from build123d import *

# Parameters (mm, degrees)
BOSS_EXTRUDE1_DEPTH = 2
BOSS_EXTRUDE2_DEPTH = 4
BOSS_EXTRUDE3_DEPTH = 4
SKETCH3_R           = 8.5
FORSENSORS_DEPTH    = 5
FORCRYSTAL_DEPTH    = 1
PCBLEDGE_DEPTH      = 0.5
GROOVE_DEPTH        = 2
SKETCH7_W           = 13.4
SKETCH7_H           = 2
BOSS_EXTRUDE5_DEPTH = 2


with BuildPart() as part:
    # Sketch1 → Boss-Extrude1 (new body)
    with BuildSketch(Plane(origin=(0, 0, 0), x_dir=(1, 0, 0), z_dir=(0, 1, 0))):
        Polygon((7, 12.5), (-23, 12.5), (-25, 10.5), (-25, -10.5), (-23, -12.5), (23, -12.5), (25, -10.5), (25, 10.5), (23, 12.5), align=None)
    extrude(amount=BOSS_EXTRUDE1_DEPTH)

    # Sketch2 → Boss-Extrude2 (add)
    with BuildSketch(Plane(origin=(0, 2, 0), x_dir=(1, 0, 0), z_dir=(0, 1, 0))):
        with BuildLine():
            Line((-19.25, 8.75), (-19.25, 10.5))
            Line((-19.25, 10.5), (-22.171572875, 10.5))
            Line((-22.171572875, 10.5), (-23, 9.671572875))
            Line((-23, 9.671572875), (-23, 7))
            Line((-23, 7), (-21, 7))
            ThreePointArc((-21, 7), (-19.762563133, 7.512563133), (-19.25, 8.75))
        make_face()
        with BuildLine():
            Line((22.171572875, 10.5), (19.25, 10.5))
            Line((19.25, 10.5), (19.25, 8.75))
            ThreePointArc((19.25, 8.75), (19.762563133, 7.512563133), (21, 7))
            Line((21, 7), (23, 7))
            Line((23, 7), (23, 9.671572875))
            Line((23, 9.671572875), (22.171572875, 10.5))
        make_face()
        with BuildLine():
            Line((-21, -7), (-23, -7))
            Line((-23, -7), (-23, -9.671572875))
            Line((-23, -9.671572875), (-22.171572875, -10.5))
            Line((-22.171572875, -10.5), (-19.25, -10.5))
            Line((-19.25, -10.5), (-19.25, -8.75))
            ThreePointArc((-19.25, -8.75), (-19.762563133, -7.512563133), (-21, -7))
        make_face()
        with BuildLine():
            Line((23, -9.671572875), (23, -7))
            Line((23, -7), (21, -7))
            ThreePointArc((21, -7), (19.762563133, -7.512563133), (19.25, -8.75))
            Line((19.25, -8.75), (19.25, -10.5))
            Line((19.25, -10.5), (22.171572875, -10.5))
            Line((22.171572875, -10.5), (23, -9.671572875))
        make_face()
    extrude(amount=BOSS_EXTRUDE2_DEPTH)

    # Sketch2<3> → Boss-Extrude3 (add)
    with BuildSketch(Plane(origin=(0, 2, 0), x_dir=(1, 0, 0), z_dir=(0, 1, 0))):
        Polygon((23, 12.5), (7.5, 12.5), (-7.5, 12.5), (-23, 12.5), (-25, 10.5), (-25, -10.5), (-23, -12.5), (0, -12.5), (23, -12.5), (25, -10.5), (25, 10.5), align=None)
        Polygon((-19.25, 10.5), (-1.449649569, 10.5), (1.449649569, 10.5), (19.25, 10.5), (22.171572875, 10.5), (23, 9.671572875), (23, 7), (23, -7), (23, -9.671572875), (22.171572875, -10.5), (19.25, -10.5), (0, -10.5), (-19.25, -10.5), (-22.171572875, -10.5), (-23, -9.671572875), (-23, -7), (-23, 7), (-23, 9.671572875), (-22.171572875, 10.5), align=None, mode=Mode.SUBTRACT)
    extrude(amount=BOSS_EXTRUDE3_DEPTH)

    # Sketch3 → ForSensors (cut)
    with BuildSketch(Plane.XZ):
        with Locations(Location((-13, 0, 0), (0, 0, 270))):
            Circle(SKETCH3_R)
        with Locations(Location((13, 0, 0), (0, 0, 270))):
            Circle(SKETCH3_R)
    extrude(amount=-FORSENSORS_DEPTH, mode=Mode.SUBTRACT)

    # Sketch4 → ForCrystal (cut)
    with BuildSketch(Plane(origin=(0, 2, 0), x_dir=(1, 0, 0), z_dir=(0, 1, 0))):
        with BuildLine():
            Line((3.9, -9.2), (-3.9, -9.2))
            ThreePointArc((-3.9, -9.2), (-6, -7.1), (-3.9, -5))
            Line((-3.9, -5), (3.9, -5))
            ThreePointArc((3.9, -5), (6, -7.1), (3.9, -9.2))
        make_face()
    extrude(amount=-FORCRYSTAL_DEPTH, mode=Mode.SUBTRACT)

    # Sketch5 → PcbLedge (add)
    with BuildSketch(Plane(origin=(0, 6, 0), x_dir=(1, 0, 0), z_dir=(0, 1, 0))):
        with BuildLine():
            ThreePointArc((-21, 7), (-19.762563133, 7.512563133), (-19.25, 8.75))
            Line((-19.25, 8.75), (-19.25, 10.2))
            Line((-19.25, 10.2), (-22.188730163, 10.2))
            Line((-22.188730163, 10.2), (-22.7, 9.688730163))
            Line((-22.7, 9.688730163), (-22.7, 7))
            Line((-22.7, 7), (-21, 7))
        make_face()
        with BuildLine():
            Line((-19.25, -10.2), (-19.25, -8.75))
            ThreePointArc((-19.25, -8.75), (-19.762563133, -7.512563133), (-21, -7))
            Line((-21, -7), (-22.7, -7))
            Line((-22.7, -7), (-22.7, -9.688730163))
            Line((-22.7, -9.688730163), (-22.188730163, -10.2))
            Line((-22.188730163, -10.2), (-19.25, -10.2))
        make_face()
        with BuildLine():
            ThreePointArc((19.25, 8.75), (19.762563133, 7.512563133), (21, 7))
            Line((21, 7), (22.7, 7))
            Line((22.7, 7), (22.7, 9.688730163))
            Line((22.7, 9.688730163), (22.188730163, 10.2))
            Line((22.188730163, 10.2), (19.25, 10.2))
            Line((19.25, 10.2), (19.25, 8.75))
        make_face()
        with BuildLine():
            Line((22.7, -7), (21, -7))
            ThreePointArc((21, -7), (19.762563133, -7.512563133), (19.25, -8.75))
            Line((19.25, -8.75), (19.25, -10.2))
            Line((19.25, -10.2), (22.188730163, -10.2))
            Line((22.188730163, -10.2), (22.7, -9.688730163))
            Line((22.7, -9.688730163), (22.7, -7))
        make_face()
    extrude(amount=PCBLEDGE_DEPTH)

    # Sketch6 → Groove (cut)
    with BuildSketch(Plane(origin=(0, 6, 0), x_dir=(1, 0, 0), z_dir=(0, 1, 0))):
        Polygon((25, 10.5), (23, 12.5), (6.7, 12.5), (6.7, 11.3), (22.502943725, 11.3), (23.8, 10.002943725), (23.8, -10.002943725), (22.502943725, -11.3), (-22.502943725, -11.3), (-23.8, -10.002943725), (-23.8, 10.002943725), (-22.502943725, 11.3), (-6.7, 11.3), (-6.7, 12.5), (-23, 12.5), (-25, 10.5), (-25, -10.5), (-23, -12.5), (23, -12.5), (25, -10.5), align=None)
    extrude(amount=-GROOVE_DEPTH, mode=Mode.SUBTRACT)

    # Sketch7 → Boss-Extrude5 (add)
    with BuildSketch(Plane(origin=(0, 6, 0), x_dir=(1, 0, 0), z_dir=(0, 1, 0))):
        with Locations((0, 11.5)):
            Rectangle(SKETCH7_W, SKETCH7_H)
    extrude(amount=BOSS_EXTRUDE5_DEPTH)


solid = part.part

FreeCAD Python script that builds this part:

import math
import FreeCAD as App
import Part
import Sketcher
from FreeCAD import Vector
Q = App.Units.Quantity


def add_polygon(sketch, points):
    """Adds a closed chain of lines whose ends are joined by coincident constraints."""
    first, n = sketch.GeometryCount, len(points)
    for a, b in zip(points, points[1:] + points[:1]):
        sketch.addGeometry(Part.LineSegment(App.Vector(*a, 0), App.Vector(*b, 0)), False)
    for i in range(n):
        sketch.addConstraint(Sketcher.Constraint("Coincident", first + i, 2, first + (i + 1) % n, 1))

doc = App.newDocument("Part")
body = doc.addObject("PartDesign::Body", "Body")

sketch1 = body.newObject("Sketcher::SketchObject", "Sketch")
sketch1.AttachmentSupport = (doc.getObject("XZ_Plane"), [""])
sketch1.MapMode = "FlatFace"
add_polygon(sketch1, [(-23, -12.5), (-25, -10.5), (-25, 10.5), (-23, 12.5), (23, 12.5), (25, 10.5), (25, -10.5), (23, -12.5)])
sketch1.addConstraint([
    Sketcher.Constraint("Vertical", 1),
    Sketcher.Constraint("Horizontal", 3),
    Sketcher.Constraint("Vertical", 5),
    Sketcher.Constraint("Horizontal", 7),
    Sketcher.Constraint("Symmetric", 0, 2, 4, 2, -1, 1),
    Sketcher.Constraint("Symmetric", 2, 2, 6, 2, -1, 1),
    Sketcher.Constraint("Perpendicular", 0, 2),
    Sketcher.Constraint("Perpendicular", 2, 4),
    Sketcher.Constraint("Perpendicular", 4, 6),
    Sketcher.Constraint("Horizontal", 1, 2, 4, 2),
    Sketcher.Constraint("Vertical", 3, 2, 6, 2),
    Sketcher.Constraint("DistanceX", 3, 1, 3, 2, Q("46 mm")),
    Sketcher.Constraint("DistanceY", 1, 1, 1, 2, Q("21 mm")),
    Sketcher.Constraint("DistanceX", 0, 2, -1, 1, Q("25 mm")),
])
pad1 = body.newObject("PartDesign::Pad", "Pad")
pad1.Profile = sketch1
pad1.Length = 2
pad1.Reversed = True

sketch2 = body.newObject("Sketcher::SketchObject", "Sketch001")
sketch2.AttachmentSupport = (doc.getObject("XZ_Plane"), [""])
sketch2.MapMode = "FlatFace"
sketch2.AttachmentOffset = App.Placement(Vector(0, 0, -2), App.Rotation())
sketch2.addGeometry([
    Part.LineSegment(Vector(-19.2, -8.8, 0), Vector(-19.2, -10.5, 0)),
    Part.LineSegment(Vector(-19.2, -10.5, 0), Vector(-22.2, -10.5, 0)),
    Part.LineSegment(Vector(-22.2, -10.5, 0), Vector(-23, -9.7, 0)),
    Part.LineSegment(Vector(-23, -9.7, 0), Vector(-23, -7, 0)),
    Part.LineSegment(Vector(-23, -7, 0), Vector(-21, -7, 0)),
    Part.ArcOfCircle(Part.Circle(Vector(-21, -8.8, 0), Vector(0, 0, 1), 1.8), math.radians(0), math.radians(90)),
    Part.LineSegment(Vector(22.2, -10.5, 0), Vector(19.2, -10.5, 0)),
    Part.LineSegment(Vector(19.2, -10.5, 0), Vector(19.2, -8.8, 0)),
    Part.ArcOfCircle(Part.Circle(Vector(21, -8.8, 0), Vector(0, 0, 1), 1.8), math.radians(90), math.radians(180)),
    Part.LineSegment(Vector(21, -7, 0), Vector(23, -7, 0)),
    Part.LineSegment(Vector(23, -7, 0), Vector(23, -9.7, 0)),
    Part.LineSegment(Vector(23, -9.7, 0), Vector(22.2, -10.5, 0)),
    Part.LineSegment(Vector(-21, 7, 0), Vector(-23, 7, 0)),
    Part.LineSegment(Vector(-23, 7, 0), Vector(-23, 9.7, 0)),
    Part.LineSegment(Vector(-23, 9.7, 0), Vector(-22.2, 10.5, 0)),
    Part.LineSegment(Vector(-22.2, 10.5, 0), Vector(-19.2, 10.5, 0)),
    Part.LineSegment(Vector(-19.2, 10.5, 0), Vector(-19.2, 8.8, 0)),
    Part.ArcOfCircle(Part.Circle(Vector(-21, 8.8, 0), Vector(0, 0, 1), 1.8), math.radians(-90), math.radians(0)),
    Part.LineSegment(Vector(23, 9.7, 0), Vector(23, 7, 0)),
    Part.LineSegment(Vector(23, 7, 0), Vector(21, 7, 0)),
    Part.ArcOfCircle(Part.Circle(Vector(21, 8.8, 0), Vector(0, 0, 1), 1.8), math.radians(180), math.radians(270)),
    Part.LineSegment(Vector(19.2, 8.8, 0), Vector(19.2, 10.5, 0)),
    Part.LineSegment(Vector(19.2, 10.5, 0), Vector(22.2, 10.5, 0)),
    Part.LineSegment(Vector(22.2, 10.5, 0), Vector(23, 9.7, 0)),
], False)
sketch2.addConstraint([
    Sketcher.Constraint("Coincident", 0, 2, 1, 1),
    Sketcher.Constraint("Coincident", 1, 2, 2, 1),
    Sketcher.Constraint("Coincident", 2, 2, 3, 1),
    Sketcher.Constraint("Coincident", 3, 2, 4, 1),
    Sketcher.Constraint("Tangent", 4, 2, 5, 2),
    Sketcher.Constraint("Tangent", 5, 1, 0, 1),
    Sketcher.Constraint("Coincident", 6, 2, 7, 1),
    Sketcher.Constraint("Tangent", 7, 2, 8, 2),
    Sketcher.Constraint("Tangent", 8, 1, 9, 1),
    Sketcher.Constraint("Coincident", 9, 2, 10, 1),
    Sketcher.Constraint("Coincident", 10, 2, 11, 1),
    Sketcher.Constraint("Coincident", 11, 2, 6, 1),
    Sketcher.Constraint("Coincident", 12, 2, 13, 1),
    Sketcher.Constraint("Coincident", 13, 2, 14, 1),
    Sketcher.Constraint("Coincident", 14, 2, 15, 1),
    Sketcher.Constraint("Coincident", 15, 2, 16, 1),
    Sketcher.Constraint("Tangent", 16, 2, 17, 2),
    Sketcher.Constraint("Tangent", 17, 1, 12, 1),
    Sketcher.Constraint("Coincident", 18, 2, 19, 1),
    Sketcher.Constraint("Tangent", 19, 2, 20, 2),
    Sketcher.Constraint("Tangent", 20, 1, 21, 1),
    Sketcher.Constraint("Coincident", 21, 2, 22, 1),
    Sketcher.Constraint("Coincident", 22, 2, 23, 1),
    Sketcher.Constraint("Coincident", 23, 2, 18, 1),
    Sketcher.Constraint("Vertical", 0),
    Sketcher.Constraint("Horizontal", 1),
    Sketcher.Constraint("Vertical", 3),
    Sketcher.Constraint("Horizontal", 4),
    Sketcher.Constraint("Horizontal", 6),
    Sketcher.Constraint("Vertical", 7),
    Sketcher.Constraint("Horizontal", 9),
    Sketcher.Constraint("Vertical", 10),
    Sketcher.Constraint("Horizontal", 12),
    Sketcher.Constraint("Vertical", 13),
    Sketcher.Constraint("Horizontal", 15),
    Sketcher.Constraint("Vertical", 16),
    Sketcher.Constraint("Vertical", 18),
    Sketcher.Constraint("Horizontal", 19),
    Sketcher.Constraint("Vertical", 21),
    Sketcher.Constraint("Horizontal", 22),
    Sketcher.Constraint("Equal", 5, 8),
    Sketcher.Constraint("Equal", 8, 17),
    Sketcher.Constraint("Equal", 17, 20),
    Sketcher.Constraint("Symmetric", 8, 3, 17, 3, -1, 1),
    Sketcher.Constraint("Symmetric", 5, 3, 20, 3, -1, 1),
    Sketcher.Constraint("Symmetric", 10, 2, 13, 2, -1, 1),
    Sketcher.Constraint("Symmetric", 11, 2, 14, 2, -1, 1),
    Sketcher.Constraint("Symmetric", 1, 2, 22, 2, -1, 1),
    Sketcher.Constraint("Symmetric", 2, 2, 23, 2, -1, 1),
    Sketcher.Constraint("Symmetric", 5, 3, 8, 3, -2),
    Sketcher.Constraint("Symmetric", 2, 2, 10, 2, -2),
    Sketcher.Constraint("Symmetric", 1, 2, 11, 2, -2),
    Sketcher.Constraint("Perpendicular", 2, 11),
    Sketcher.Constraint("DistanceX", 4, 1, 4, 2, Q("2 mm")),
    Sketcher.Constraint("Radius", 5, Q("1.75 mm")),
    Sketcher.Constraint("DistanceX", 5, 3, -1, 1, Q("21 mm")),
    Sketcher.Constraint("DistanceY", 3, 2, -1, 1, Q("7 mm")),
    Sketcher.Constraint("DistanceY", 0, 2, 0, 1, Q("1.75 mm")),
    Sketcher.Constraint("DistanceX", 1, 2, 1, 1, Q("2.921573 mm")),
])
pad2 = body.newObject("PartDesign::Pad", "Pad001")
pad2.Profile = sketch2
pad2.Length = 4
pad2.Reversed = True

sketch3 = body.newObject("Sketcher::SketchObject", "Sketch002")
sketch3.AttachmentSupport = (doc.getObject("XZ_Plane"), [""])
sketch3.MapMode = "FlatFace"
sketch3.AttachmentOffset = App.Placement(Vector(0, 0, -2), App.Rotation())
add_polygon(sketch3, [(23, -12.5), (-23, -12.5), (-25, -10.5), (-25, 10.5), (-23, 12.5), (23, 12.5), (25, 10.5), (25, -10.5)])
add_polygon(sketch3, [(-22.2, -10.5), (22.2, -10.5), (23, -9.7), (23, 9.7), (22.2, 10.5), (-22.2, 10.5), (-23, 9.7), (-23, -9.7)])
sketch3.addConstraint([
    Sketcher.Constraint("Horizontal", 0),
    Sketcher.Constraint("Vertical", 2),
    Sketcher.Constraint("Horizontal", 4),
    Sketcher.Constraint("Vertical", 6),
    Sketcher.Constraint("Horizontal", 8),
    Sketcher.Constraint("Vertical", 10),
    Sketcher.Constraint("Horizontal", 12),
    Sketcher.Constraint("Vertical", 14),
    Sketcher.Constraint("Symmetric", 0, 2, 4, 2, -1, 1),
    Sketcher.Constraint("Symmetric", 1, 2, 5, 2, -1, 1),
    Sketcher.Constraint("Symmetric", 8, 2, 12, 2, -1, 1),
    Sketcher.Constraint("Symmetric", 9, 2, 13, 2, -1, 1),
    Sketcher.Constraint("Perpendicular", 1, 3),
    Sketcher.Constraint("Perpendicular", 5, 7),
    Sketcher.Constraint("Parallel", 7, 9),
    Sketcher.Constraint("Perpendicular", 9, 11),
    Sketcher.Constraint("Perpendicular", 13, 15),
    Sketcher.Constraint("Horizontal", 2, 2, 5, 2),
    Sketcher.Constraint("Horizontal", 1, 2, 6, 2),
    Sketcher.Constraint("Horizontal", 6, 2, 8, 2),
    Sketcher.Constraint("Horizontal", 10, 2, 13, 2),
    Sketcher.Constraint("Horizontal", 9, 2, 14, 2),
    Sketcher.Constraint("Vertical", 0, 2, 3, 2),
    Sketcher.Constraint("Vertical", 7, 2, 9, 2),
    Sketcher.Constraint("DistanceX", 0, 2, 0, 1, Q("46 mm")),
    Sketcher.Constraint("DistanceY", 2, 1, 2, 2, Q("21 mm")),
    Sketcher.Constraint("DistanceX", 1, 2, -1, 1, Q("25 mm")),
    Sketcher.Constraint("DistanceX", 8, 1, 8, 2, Q("44.343146 mm")),
])
pad3 = body.newObject("PartDesign::Pad", "Pad002")
pad3.Profile = sketch3
pad3.Length = 4
pad3.Reversed = True

sketch4 = body.newObject("Sketcher::SketchObject", "Sketch003")
sketch4.AttachmentSupport = (doc.getObject("XZ_Plane"), [""])
sketch4.MapMode = "FlatFace"
sketch4.addGeometry([
    Part.Circle(Vector(-13, 0, 0), Vector(0, 0, 1), 8),
    Part.Circle(Vector(13, 0, 0), Vector(0, 0, 1), 8),
], False)
sketch4.addConstraint([
    Sketcher.Constraint("Equal", 0, 1),
    Sketcher.Constraint("Symmetric", 0, 3, 1, 3, -1, 1),
    Sketcher.Constraint("PointOnObject", 0, 3, -1),
    Sketcher.Constraint("Diameter", 0, Q("17 mm")),
    Sketcher.Constraint("DistanceX", 0, 3, -1, 1, Q("13 mm")),
])
pocket1 = body.newObject("PartDesign::Pocket", "Pocket")
pocket1.Profile = sketch4
pocket1.Length = 5

sketch5 = body.newObject("Sketcher::SketchObject", "Sketch004")
sketch5.AttachmentSupport = (doc.getObject("XZ_Plane"), [""])
sketch5.MapMode = "FlatFace"
sketch5.AttachmentOffset = App.Placement(Vector(0, 0, -2), App.Rotation())
sketch5.addGeometry([
    Part.LineSegment(Vector(-3.9, 9.2, 0), Vector(3.9, 9.2, 0)),
    Part.ArcOfCircle(Part.Circle(Vector(3.9, 7.1, 0), Vector(0, 0, 1), 2.1), math.radians(-90), math.radians(90)),
    Part.LineSegment(Vector(3.9, 5, 0), Vector(-3.9, 5, 0)),
    Part.ArcOfCircle(Part.Circle(Vector(-3.9, 7.1, 0), Vector(0, 0, 1), 2.1), math.radians(90), math.radians(270)),
], False)
sketch5.addConstraint([
    Sketcher.Constraint("Tangent", 0, 2, 1, 2),
    Sketcher.Constraint("Tangent", 1, 1, 2, 1),
    Sketcher.Constraint("Tangent", 2, 2, 3, 2),
    Sketcher.Constraint("Tangent", 3, 1, 0, 1),
    Sketcher.Constraint("Horizontal", 0),
    Sketcher.Constraint("Horizontal", 2),
    Sketcher.Constraint("Radius", 1, Q("2.1 mm")),
    Sketcher.Constraint("DistanceX", 0, 1, 0, 2, Q("7.8 mm")),
    Sketcher.Constraint("DistanceY", -1, 1, 1, 1, Q("5 mm")),
    Sketcher.Constraint("DistanceX", -1, 1, 1, 3, Q("3.9 mm")),
])
pocket2 = body.newObject("PartDesign::Pocket", "Pocket001")
pocket2.Profile = sketch5
pocket2.Length = 1
pocket2.Reversed = True

sketch6 = body.newObject("Sketcher::SketchObject", "Sketch005")
sketch6.AttachmentSupport = (doc.getObject("XZ_Plane"), [""])
sketch6.MapMode = "FlatFace"
sketch6.AttachmentOffset = App.Placement(Vector(0, 0, -6), App.Rotation())
sketch6.addGeometry([
    Part.ArcOfCircle(Part.Circle(Vector(-21, -8.8, 0), Vector(0, 0, 1), 1.8), math.radians(0), math.radians(90)),
    Part.LineSegment(Vector(-19.2, -8.8, 0), Vector(-19.2, -10.2, 0)),
    Part.LineSegment(Vector(-19.2, -10.2, 0), Vector(-22.2, -10.2, 0)),
    Part.LineSegment(Vector(-22.2, -10.2, 0), Vector(-22.7, -9.7, 0)),
    Part.LineSegment(Vector(-22.7, -9.7, 0), Vector(-22.7, -7, 0)),
    Part.LineSegment(Vector(-22.7, -7, 0), Vector(-21, -7, 0)),
    Part.LineSegment(Vector(-19.2, 10.2, 0), Vector(-19.2, 8.8, 0)),
    Part.ArcOfCircle(Part.Circle(Vector(-21, 8.8, 0), Vector(0, 0, 1), 1.8), math.radians(-90), math.radians(0)),
    Part.LineSegment(Vector(-21, 7, 0), Vector(-22.7, 7, 0)),
    Part.LineSegment(Vector(-22.7, 7, 0), Vector(-22.7, 9.7, 0)),
    Part.LineSegment(Vector(-22.7, 9.7, 0), Vector(-22.2, 10.2, 0)),
    Part.LineSegment(Vector(-22.2, 10.2, 0), Vector(-19.2, 10.2, 0)),
    Part.ArcOfCircle(Part.Circle(Vector(21, -8.8, 0), Vector(0, 0, 1), 1.8), math.radians(90), math.radians(180)),
    Part.LineSegment(Vector(21, -7, 0), Vector(22.7, -7, 0)),
    Part.LineSegment(Vector(22.7, -7, 0), Vector(22.7, -9.7, 0)),
    Part.LineSegment(Vector(22.7, -9.7, 0), Vector(22.2, -10.2, 0)),
    Part.LineSegment(Vector(22.2, -10.2, 0), Vector(19.2, -10.2, 0)),
    Part.LineSegment(Vector(19.2, -10.2, 0), Vector(19.2, -8.8, 0)),
    Part.LineSegment(Vector(22.7, 7, 0), Vector(21, 7, 0)),
    Part.ArcOfCircle(Part.Circle(Vector(21, 8.8, 0), Vector(0, 0, 1), 1.8), math.radians(180), math.radians(270)),
    Part.LineSegment(Vector(19.2, 8.8, 0), Vector(19.2, 10.2, 0)),
    Part.LineSegment(Vector(19.2, 10.2, 0), Vector(22.2, 10.2, 0)),
    Part.LineSegment(Vector(22.2, 10.2, 0), Vector(22.7, 9.7, 0)),
    Part.LineSegment(Vector(22.7, 9.7, 0), Vector(22.7, 7, 0)),
], False)
sketch6.addConstraint([
    Sketcher.Constraint("Tangent", 0, 1, 1, 1),
    Sketcher.Constraint("Coincident", 1, 2, 2, 1),
    Sketcher.Constraint("Coincident", 2, 2, 3, 1),
    Sketcher.Constraint("Coincident", 3, 2, 4, 1),
    Sketcher.Constraint("Coincident", 4, 2, 5, 1),
    Sketcher.Constraint("Tangent", 5, 2, 0, 2),
    Sketcher.Constraint("Tangent", 6, 2, 7, 2),
    Sketcher.Constraint("Tangent", 7, 1, 8, 1),
    Sketcher.Constraint("Coincident", 8, 2, 9, 1),
    Sketcher.Constraint("Coincident", 9, 2, 10, 1),
    Sketcher.Constraint("Coincident", 10, 2, 11, 1),
    Sketcher.Constraint("Coincident", 11, 2, 6, 1),
    Sketcher.Constraint("Tangent", 12, 1, 13, 1),
    Sketcher.Constraint("Coincident", 13, 2, 14, 1),
    Sketcher.Constraint("Coincident", 14, 2, 15, 1),
    Sketcher.Constraint("Coincident", 15, 2, 16, 1),
    Sketcher.Constraint("Coincident", 16, 2, 17, 1),
    Sketcher.Constraint("Tangent", 17, 2, 12, 2),
    Sketcher.Constraint("Tangent", 18, 2, 19, 2),
    Sketcher.Constraint("Tangent", 19, 1, 20, 1),
    Sketcher.Constraint("Coincident", 20, 2, 21, 1),
    Sketcher.Constraint("Coincident", 21, 2, 22, 1),
    Sketcher.Constraint("Coincident", 22, 2, 23, 1),
    Sketcher.Constraint("Coincident", 23, 2, 18, 1),
    Sketcher.Constraint("Vertical", 1),
    Sketcher.Constraint("Horizontal", 2),
    Sketcher.Constraint("Vertical", 4),
    Sketcher.Constraint("Horizontal", 5),
    Sketcher.Constraint("Vertical", 6),
    Sketcher.Constraint("Horizontal", 8),
    Sketcher.Constraint("Vertical", 9),
    Sketcher.Constraint("Horizontal", 11),
    Sketcher.Constraint("Horizontal", 13),
    Sketcher.Constraint("Vertical", 14),
    Sketcher.Constraint("Horizontal", 16),
    Sketcher.Constraint("Vertical", 17),
    Sketcher.Constraint("Horizontal", 18),
    Sketcher.Constraint("Vertical", 20),
    Sketcher.Constraint("Horizontal", 21),
    Sketcher.Constraint("Vertical", 23),
    Sketcher.Constraint("Equal", 0, 7),
    Sketcher.Constraint("Equal", 7, 12),
    Sketcher.Constraint("Equal", 12, 19),
    Sketcher.Constraint("Symmetric", 7, 3, 12, 3, -1, 1),
    Sketcher.Constraint("Symmetric", 0, 3, 19, 3, -1, 1),
    Sketcher.Constraint("Symmetric", 9, 2, 14, 2, -1, 1),
    Sketcher.Constraint("Symmetric", 10, 2, 15, 2, -1, 1),
    Sketcher.Constraint("Symmetric", 2, 2, 21, 2, -1, 1),
    Sketcher.Constraint("Symmetric", 3, 2, 22, 2, -1, 1),
    Sketcher.Constraint("Symmetric", 0, 3, 12, 3, -2),
    Sketcher.Constraint("Symmetric", 3, 2, 14, 2, -2),
    Sketcher.Constraint("Symmetric", 2, 2, 15, 2, -2),
    Sketcher.Constraint("Perpendicular", 3, 10),
    Sketcher.Constraint("Radius", 0, Q("1.75 mm")),
    Sketcher.Constraint("DistanceX", 5, 1, 5, 2, Q("1.7 mm")),
    Sketcher.Constraint("DistanceX", 0, 3, -1, 1, Q("21 mm")),
    Sketcher.Constraint("DistanceY", 4, 2, -1, 1, Q("7 mm")),
    Sketcher.Constraint("DistanceY", 1, 2, 1, 1, Q("1.45 mm")),
    Sketcher.Constraint("DistanceX", 2, 2, 2, 1, Q("2.93873 mm")),
])
pad4 = body.newObject("PartDesign::Pad", "Pad003")
pad4.Profile = sketch6
pad4.Length = 0.5
pad4.Reversed = True

sketch7 = body.newObject("Sketcher::SketchObject", "Sketch006")
sketch7.AttachmentSupport = (doc.getObject("XZ_Plane"), [""])
sketch7.MapMode = "FlatFace"
sketch7.AttachmentOffset = App.Placement(Vector(0, 0, -6), App.Rotation())
add_polygon(sketch7, [(25, -10.5), (23, -12.5), (6.7, -12.5), (6.7, -11.3), (22.5, -11.3), (23.8, -10), (23.8, 10), (22.5, 11.3), (-22.5, 11.3), (-23.8, 10), (-23.8, -10), (-22.5, -11.3), (-6.7, -11.3), (-6.7, -12.5), (-23, -12.5), (-25, -10.5), (-25, 10.5), (-23, 12.5), (23, 12.5), (25, 10.5)])
sketch7.addConstraint([
    Sketcher.Constraint("Horizontal", 1),
    Sketcher.Constraint("Vertical", 2),
    Sketcher.Constraint("Horizontal", 3),
    Sketcher.Constraint("Vertical", 5),
    Sketcher.Constraint("Horizontal", 7),
    Sketcher.Constraint("Vertical", 9),
    Sketcher.Constraint("Horizontal", 11),
    Sketcher.Constraint("Vertical", 12),
    Sketcher.Constraint("Horizontal", 13),
    Sketcher.Constraint("Vertical", 15),
    Sketcher.Constraint("Horizontal", 17),
    Sketcher.Constraint("Vertical", 19),
    Sketcher.Constraint("Symmetric", 3, 2, 7, 2, -1, 1),
    Sketcher.Constraint("Symmetric", 4, 2, 8, 2, -1, 1),
    Sketcher.Constraint("Symmetric", 6, 2, 10, 2, -1, 1),
    Sketcher.Constraint("Symmetric", 0, 2, 16, 2, -1, 1),
    Sketcher.Constraint("Symmetric", 13, 2, 17, 2, -1, 1),
    Sketcher.Constraint("Symmetric", 14, 2, 18, 2, -1, 1),
    Sketcher.Constraint("Parallel", 0, 4),
    Sketcher.Constraint("Perpendicular", 4, 6),
    Sketcher.Constraint("Perpendicular", 8, 10),
    Sketcher.Constraint("Parallel", 10, 14),
    Sketcher.Constraint("Perpendicular", 14, 16),
    Sketcher.Constraint("Horizontal", 5, 2, 8, 2),
    Sketcher.Constraint("Horizontal", 15, 2, 18, 2),
    Sketcher.Constraint("Vertical", 3, 2, 6, 2),
    Sketcher.Constraint("Equal", 3, 11),
    Sketcher.Constraint("DistanceX", 17, 1, 17, 2, Q("46 mm")),
    Sketcher.Constraint("DistanceY", 15, 1, 15, 2, Q("21 mm")),
    Sketcher.Constraint("DistanceX", 1, 2, 1, 1, Q("16.3 mm")),
    Sketcher.Constraint("DistanceY", 2, 1, 2, 2, Q("1.2 mm")),
    Sketcher.Constraint("DistanceX", 14, 2, -1, 1, Q("25 mm")),
    Sketcher.Constraint("DistanceX", -1, 1, 4, 2, Q("23.8 mm")),
    Sketcher.Constraint("DistanceX", 3, 1, 3, 2, Q("15.802944 mm")),
])
pocket3 = body.newObject("PartDesign::Pocket", "Pocket002")
pocket3.Profile = sketch7
pocket3.Length = 2
pocket3.Reversed = True

sketch8 = body.newObject("Sketcher::SketchObject", "Sketch007")
sketch8.AttachmentSupport = (doc.getObject("XZ_Plane"), [""])
sketch8.MapMode = "FlatFace"
sketch8.AttachmentOffset = App.Placement(Vector(0, 0, -6), App.Rotation())
add_polygon(sketch8, [(-6.7, -12.5), (-6.7, -10.5), (6.7, -10.5), (6.7, -12.5)])
sketch8.addConstraint([
    Sketcher.Constraint("Vertical", 0),
    Sketcher.Constraint("Horizontal", 1),
    Sketcher.Constraint("Vertical", 2),
    Sketcher.Constraint("Horizontal", 3),
    Sketcher.Constraint("DistanceY", 0, 1, 0, 2, Q("2 mm")),
    Sketcher.Constraint("DistanceX", 1, 1, 1, 2, Q("13.4 mm")),
    Sketcher.Constraint("DistanceX", 0, 2, -1, 1, Q("6.7 mm")),
    Sketcher.Constraint("DistanceY", 0, 2, -1, 1, Q("10.5 mm")),
])
pad5 = body.newObject("PartDesign::Pad", "Pad004")
pad5.Profile = sketch8
pad5.Length = 2
pad5.Reversed = True

doc.recompute()
